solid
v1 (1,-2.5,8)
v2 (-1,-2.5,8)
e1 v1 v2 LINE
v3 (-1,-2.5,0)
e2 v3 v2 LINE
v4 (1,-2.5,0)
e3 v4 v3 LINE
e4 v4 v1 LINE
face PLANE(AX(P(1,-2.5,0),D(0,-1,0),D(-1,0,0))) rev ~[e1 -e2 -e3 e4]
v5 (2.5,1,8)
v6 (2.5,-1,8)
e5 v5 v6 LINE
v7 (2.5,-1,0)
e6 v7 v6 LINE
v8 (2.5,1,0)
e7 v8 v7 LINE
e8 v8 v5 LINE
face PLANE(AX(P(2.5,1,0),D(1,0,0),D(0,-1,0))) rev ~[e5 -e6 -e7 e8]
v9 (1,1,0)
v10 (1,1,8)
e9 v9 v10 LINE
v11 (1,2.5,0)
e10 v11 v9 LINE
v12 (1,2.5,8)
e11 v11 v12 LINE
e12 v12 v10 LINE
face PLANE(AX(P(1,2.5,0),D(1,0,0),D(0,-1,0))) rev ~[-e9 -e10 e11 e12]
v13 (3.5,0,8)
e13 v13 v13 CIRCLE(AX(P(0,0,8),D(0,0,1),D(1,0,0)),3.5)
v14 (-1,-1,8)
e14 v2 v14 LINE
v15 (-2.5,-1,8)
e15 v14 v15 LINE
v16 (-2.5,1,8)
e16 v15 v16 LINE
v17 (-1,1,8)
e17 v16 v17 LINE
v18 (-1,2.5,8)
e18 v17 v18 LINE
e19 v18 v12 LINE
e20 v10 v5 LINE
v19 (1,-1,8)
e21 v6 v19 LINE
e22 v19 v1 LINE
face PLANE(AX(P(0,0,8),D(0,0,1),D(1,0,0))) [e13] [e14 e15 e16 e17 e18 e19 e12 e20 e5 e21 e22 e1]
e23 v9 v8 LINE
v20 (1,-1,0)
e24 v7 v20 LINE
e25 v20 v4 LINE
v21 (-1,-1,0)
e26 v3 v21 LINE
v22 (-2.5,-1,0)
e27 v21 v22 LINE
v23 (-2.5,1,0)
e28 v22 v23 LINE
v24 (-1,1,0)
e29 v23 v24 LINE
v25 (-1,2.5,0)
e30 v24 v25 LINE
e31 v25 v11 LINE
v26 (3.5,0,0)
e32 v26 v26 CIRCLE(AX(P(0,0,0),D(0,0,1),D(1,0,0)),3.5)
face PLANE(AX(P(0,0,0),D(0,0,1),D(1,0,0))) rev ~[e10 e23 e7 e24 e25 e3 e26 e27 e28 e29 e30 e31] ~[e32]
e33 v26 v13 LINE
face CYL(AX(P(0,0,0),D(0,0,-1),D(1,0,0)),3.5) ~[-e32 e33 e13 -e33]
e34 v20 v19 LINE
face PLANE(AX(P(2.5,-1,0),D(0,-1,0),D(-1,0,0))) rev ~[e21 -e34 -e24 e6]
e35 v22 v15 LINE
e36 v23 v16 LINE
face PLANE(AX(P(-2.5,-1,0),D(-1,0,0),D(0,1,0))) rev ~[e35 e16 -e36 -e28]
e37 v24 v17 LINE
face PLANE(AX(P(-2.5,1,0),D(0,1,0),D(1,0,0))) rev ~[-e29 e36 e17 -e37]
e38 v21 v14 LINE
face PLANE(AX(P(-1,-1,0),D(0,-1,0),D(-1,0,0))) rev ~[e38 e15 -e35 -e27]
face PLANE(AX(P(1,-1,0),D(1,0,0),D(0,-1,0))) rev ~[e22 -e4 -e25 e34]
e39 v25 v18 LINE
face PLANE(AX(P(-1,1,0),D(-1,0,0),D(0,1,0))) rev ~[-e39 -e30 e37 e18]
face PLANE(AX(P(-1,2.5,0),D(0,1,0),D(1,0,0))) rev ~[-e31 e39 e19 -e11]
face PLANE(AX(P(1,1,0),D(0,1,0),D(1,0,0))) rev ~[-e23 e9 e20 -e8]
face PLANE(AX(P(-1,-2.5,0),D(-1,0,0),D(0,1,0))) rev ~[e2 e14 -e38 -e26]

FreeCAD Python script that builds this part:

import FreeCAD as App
import Part
import Sketcher
Q = App.Units.Quantity


def add_polygon(sketch, points):
    """Adds a closed chain of lines whose ends are joined by coincident constraints."""
    first, n = sketch.GeometryCount, len(points)
    for a, b in zip(points, points[1:] + points[:1]):
        sketch.addGeometry(Part.LineSegment(App.Vector(*a, 0), App.Vector(*b, 0)), False)
    for i in range(n):
        sketch.addConstraint(Sketcher.Constraint("Coincident", first + i, 2, first + (i + 1) % n, 1))

doc = App.newDocument("Part")
body = doc.addObject("PartDesign::Body", "Body")

sketch1 = doc.addObject("Sketcher::SketchObject", "Sketch")
body.addObject(sketch1)
sketch1.AttachmentSupport = (doc.XY_Plane, [""])
sketch1.MapMode = "FlatFace"
sketch1.addGeometry(Part.Circle(App.Vector(0, 0, 0), App.Vector(0, 0, 1), 3.5), False)
add_polygon(sketch1, [(1, -1), (1, -2.5), (-1, -2.5), (-1, -1), (-2.5, -1), (-2.5, 1), (-1, 1), (-1, 2.5), (1, 2.5), (1, 1), (2.5, 1), (2.5, -1)])
sketch1.addConstraint([
    Sketcher.Constraint("Vertical", 1),
    Sketcher.Constraint("Horizontal", 2),
    Sketcher.Constraint("Vertical", 3),
    Sketcher.Constraint("Horizontal", 4),
    Sketcher.Constraint("Vertical", 5),
    Sketcher.Constraint("Horizontal", 6),
    Sketcher.Constraint("Vertical", 7),
    Sketcher.Constraint("Horizontal", 8),
    Sketcher.Constraint("Vertical", 9),
    Sketcher.Constraint("Horizontal", 10),
    Sketcher.Constraint("Vertical", 11),
    Sketcher.Constraint("Horizontal", 12),
    Sketcher.Constraint("Coincident", 0, 3, -1, 1),
    Sketcher.Constraint("Symmetric", 1, 2, 7, 2, -1, 1),
    Sketcher.Constraint("Symmetric", 3, 2, 9, 2, -1, 1),
    Sketcher.Constraint("Symmetric", 5, 2, 11, 2, -1, 1),
    Sketcher.Constraint("Symmetric", 6, 2, 9, 2, -2),
    Sketcher.Constraint("Equal", 12, 1),
    Sketcher.Constraint("Equal", 8, 5),
    Sketcher.Constraint("Diameter", 0, Q("7 mm")),
    Sketcher.Constraint("DistanceX", 2, 2, 2, 1, Q("2 mm")),
    Sketcher.Constraint("DistanceX", 4, 2, 4, 1, Q("1.5 mm")),
])
pad1 = doc.addObject("PartDesign::Pad", "Pad")
body.addObject(pad1)
pad1.Profile = sketch1
pad1.Length = 8

doc.recompute()
